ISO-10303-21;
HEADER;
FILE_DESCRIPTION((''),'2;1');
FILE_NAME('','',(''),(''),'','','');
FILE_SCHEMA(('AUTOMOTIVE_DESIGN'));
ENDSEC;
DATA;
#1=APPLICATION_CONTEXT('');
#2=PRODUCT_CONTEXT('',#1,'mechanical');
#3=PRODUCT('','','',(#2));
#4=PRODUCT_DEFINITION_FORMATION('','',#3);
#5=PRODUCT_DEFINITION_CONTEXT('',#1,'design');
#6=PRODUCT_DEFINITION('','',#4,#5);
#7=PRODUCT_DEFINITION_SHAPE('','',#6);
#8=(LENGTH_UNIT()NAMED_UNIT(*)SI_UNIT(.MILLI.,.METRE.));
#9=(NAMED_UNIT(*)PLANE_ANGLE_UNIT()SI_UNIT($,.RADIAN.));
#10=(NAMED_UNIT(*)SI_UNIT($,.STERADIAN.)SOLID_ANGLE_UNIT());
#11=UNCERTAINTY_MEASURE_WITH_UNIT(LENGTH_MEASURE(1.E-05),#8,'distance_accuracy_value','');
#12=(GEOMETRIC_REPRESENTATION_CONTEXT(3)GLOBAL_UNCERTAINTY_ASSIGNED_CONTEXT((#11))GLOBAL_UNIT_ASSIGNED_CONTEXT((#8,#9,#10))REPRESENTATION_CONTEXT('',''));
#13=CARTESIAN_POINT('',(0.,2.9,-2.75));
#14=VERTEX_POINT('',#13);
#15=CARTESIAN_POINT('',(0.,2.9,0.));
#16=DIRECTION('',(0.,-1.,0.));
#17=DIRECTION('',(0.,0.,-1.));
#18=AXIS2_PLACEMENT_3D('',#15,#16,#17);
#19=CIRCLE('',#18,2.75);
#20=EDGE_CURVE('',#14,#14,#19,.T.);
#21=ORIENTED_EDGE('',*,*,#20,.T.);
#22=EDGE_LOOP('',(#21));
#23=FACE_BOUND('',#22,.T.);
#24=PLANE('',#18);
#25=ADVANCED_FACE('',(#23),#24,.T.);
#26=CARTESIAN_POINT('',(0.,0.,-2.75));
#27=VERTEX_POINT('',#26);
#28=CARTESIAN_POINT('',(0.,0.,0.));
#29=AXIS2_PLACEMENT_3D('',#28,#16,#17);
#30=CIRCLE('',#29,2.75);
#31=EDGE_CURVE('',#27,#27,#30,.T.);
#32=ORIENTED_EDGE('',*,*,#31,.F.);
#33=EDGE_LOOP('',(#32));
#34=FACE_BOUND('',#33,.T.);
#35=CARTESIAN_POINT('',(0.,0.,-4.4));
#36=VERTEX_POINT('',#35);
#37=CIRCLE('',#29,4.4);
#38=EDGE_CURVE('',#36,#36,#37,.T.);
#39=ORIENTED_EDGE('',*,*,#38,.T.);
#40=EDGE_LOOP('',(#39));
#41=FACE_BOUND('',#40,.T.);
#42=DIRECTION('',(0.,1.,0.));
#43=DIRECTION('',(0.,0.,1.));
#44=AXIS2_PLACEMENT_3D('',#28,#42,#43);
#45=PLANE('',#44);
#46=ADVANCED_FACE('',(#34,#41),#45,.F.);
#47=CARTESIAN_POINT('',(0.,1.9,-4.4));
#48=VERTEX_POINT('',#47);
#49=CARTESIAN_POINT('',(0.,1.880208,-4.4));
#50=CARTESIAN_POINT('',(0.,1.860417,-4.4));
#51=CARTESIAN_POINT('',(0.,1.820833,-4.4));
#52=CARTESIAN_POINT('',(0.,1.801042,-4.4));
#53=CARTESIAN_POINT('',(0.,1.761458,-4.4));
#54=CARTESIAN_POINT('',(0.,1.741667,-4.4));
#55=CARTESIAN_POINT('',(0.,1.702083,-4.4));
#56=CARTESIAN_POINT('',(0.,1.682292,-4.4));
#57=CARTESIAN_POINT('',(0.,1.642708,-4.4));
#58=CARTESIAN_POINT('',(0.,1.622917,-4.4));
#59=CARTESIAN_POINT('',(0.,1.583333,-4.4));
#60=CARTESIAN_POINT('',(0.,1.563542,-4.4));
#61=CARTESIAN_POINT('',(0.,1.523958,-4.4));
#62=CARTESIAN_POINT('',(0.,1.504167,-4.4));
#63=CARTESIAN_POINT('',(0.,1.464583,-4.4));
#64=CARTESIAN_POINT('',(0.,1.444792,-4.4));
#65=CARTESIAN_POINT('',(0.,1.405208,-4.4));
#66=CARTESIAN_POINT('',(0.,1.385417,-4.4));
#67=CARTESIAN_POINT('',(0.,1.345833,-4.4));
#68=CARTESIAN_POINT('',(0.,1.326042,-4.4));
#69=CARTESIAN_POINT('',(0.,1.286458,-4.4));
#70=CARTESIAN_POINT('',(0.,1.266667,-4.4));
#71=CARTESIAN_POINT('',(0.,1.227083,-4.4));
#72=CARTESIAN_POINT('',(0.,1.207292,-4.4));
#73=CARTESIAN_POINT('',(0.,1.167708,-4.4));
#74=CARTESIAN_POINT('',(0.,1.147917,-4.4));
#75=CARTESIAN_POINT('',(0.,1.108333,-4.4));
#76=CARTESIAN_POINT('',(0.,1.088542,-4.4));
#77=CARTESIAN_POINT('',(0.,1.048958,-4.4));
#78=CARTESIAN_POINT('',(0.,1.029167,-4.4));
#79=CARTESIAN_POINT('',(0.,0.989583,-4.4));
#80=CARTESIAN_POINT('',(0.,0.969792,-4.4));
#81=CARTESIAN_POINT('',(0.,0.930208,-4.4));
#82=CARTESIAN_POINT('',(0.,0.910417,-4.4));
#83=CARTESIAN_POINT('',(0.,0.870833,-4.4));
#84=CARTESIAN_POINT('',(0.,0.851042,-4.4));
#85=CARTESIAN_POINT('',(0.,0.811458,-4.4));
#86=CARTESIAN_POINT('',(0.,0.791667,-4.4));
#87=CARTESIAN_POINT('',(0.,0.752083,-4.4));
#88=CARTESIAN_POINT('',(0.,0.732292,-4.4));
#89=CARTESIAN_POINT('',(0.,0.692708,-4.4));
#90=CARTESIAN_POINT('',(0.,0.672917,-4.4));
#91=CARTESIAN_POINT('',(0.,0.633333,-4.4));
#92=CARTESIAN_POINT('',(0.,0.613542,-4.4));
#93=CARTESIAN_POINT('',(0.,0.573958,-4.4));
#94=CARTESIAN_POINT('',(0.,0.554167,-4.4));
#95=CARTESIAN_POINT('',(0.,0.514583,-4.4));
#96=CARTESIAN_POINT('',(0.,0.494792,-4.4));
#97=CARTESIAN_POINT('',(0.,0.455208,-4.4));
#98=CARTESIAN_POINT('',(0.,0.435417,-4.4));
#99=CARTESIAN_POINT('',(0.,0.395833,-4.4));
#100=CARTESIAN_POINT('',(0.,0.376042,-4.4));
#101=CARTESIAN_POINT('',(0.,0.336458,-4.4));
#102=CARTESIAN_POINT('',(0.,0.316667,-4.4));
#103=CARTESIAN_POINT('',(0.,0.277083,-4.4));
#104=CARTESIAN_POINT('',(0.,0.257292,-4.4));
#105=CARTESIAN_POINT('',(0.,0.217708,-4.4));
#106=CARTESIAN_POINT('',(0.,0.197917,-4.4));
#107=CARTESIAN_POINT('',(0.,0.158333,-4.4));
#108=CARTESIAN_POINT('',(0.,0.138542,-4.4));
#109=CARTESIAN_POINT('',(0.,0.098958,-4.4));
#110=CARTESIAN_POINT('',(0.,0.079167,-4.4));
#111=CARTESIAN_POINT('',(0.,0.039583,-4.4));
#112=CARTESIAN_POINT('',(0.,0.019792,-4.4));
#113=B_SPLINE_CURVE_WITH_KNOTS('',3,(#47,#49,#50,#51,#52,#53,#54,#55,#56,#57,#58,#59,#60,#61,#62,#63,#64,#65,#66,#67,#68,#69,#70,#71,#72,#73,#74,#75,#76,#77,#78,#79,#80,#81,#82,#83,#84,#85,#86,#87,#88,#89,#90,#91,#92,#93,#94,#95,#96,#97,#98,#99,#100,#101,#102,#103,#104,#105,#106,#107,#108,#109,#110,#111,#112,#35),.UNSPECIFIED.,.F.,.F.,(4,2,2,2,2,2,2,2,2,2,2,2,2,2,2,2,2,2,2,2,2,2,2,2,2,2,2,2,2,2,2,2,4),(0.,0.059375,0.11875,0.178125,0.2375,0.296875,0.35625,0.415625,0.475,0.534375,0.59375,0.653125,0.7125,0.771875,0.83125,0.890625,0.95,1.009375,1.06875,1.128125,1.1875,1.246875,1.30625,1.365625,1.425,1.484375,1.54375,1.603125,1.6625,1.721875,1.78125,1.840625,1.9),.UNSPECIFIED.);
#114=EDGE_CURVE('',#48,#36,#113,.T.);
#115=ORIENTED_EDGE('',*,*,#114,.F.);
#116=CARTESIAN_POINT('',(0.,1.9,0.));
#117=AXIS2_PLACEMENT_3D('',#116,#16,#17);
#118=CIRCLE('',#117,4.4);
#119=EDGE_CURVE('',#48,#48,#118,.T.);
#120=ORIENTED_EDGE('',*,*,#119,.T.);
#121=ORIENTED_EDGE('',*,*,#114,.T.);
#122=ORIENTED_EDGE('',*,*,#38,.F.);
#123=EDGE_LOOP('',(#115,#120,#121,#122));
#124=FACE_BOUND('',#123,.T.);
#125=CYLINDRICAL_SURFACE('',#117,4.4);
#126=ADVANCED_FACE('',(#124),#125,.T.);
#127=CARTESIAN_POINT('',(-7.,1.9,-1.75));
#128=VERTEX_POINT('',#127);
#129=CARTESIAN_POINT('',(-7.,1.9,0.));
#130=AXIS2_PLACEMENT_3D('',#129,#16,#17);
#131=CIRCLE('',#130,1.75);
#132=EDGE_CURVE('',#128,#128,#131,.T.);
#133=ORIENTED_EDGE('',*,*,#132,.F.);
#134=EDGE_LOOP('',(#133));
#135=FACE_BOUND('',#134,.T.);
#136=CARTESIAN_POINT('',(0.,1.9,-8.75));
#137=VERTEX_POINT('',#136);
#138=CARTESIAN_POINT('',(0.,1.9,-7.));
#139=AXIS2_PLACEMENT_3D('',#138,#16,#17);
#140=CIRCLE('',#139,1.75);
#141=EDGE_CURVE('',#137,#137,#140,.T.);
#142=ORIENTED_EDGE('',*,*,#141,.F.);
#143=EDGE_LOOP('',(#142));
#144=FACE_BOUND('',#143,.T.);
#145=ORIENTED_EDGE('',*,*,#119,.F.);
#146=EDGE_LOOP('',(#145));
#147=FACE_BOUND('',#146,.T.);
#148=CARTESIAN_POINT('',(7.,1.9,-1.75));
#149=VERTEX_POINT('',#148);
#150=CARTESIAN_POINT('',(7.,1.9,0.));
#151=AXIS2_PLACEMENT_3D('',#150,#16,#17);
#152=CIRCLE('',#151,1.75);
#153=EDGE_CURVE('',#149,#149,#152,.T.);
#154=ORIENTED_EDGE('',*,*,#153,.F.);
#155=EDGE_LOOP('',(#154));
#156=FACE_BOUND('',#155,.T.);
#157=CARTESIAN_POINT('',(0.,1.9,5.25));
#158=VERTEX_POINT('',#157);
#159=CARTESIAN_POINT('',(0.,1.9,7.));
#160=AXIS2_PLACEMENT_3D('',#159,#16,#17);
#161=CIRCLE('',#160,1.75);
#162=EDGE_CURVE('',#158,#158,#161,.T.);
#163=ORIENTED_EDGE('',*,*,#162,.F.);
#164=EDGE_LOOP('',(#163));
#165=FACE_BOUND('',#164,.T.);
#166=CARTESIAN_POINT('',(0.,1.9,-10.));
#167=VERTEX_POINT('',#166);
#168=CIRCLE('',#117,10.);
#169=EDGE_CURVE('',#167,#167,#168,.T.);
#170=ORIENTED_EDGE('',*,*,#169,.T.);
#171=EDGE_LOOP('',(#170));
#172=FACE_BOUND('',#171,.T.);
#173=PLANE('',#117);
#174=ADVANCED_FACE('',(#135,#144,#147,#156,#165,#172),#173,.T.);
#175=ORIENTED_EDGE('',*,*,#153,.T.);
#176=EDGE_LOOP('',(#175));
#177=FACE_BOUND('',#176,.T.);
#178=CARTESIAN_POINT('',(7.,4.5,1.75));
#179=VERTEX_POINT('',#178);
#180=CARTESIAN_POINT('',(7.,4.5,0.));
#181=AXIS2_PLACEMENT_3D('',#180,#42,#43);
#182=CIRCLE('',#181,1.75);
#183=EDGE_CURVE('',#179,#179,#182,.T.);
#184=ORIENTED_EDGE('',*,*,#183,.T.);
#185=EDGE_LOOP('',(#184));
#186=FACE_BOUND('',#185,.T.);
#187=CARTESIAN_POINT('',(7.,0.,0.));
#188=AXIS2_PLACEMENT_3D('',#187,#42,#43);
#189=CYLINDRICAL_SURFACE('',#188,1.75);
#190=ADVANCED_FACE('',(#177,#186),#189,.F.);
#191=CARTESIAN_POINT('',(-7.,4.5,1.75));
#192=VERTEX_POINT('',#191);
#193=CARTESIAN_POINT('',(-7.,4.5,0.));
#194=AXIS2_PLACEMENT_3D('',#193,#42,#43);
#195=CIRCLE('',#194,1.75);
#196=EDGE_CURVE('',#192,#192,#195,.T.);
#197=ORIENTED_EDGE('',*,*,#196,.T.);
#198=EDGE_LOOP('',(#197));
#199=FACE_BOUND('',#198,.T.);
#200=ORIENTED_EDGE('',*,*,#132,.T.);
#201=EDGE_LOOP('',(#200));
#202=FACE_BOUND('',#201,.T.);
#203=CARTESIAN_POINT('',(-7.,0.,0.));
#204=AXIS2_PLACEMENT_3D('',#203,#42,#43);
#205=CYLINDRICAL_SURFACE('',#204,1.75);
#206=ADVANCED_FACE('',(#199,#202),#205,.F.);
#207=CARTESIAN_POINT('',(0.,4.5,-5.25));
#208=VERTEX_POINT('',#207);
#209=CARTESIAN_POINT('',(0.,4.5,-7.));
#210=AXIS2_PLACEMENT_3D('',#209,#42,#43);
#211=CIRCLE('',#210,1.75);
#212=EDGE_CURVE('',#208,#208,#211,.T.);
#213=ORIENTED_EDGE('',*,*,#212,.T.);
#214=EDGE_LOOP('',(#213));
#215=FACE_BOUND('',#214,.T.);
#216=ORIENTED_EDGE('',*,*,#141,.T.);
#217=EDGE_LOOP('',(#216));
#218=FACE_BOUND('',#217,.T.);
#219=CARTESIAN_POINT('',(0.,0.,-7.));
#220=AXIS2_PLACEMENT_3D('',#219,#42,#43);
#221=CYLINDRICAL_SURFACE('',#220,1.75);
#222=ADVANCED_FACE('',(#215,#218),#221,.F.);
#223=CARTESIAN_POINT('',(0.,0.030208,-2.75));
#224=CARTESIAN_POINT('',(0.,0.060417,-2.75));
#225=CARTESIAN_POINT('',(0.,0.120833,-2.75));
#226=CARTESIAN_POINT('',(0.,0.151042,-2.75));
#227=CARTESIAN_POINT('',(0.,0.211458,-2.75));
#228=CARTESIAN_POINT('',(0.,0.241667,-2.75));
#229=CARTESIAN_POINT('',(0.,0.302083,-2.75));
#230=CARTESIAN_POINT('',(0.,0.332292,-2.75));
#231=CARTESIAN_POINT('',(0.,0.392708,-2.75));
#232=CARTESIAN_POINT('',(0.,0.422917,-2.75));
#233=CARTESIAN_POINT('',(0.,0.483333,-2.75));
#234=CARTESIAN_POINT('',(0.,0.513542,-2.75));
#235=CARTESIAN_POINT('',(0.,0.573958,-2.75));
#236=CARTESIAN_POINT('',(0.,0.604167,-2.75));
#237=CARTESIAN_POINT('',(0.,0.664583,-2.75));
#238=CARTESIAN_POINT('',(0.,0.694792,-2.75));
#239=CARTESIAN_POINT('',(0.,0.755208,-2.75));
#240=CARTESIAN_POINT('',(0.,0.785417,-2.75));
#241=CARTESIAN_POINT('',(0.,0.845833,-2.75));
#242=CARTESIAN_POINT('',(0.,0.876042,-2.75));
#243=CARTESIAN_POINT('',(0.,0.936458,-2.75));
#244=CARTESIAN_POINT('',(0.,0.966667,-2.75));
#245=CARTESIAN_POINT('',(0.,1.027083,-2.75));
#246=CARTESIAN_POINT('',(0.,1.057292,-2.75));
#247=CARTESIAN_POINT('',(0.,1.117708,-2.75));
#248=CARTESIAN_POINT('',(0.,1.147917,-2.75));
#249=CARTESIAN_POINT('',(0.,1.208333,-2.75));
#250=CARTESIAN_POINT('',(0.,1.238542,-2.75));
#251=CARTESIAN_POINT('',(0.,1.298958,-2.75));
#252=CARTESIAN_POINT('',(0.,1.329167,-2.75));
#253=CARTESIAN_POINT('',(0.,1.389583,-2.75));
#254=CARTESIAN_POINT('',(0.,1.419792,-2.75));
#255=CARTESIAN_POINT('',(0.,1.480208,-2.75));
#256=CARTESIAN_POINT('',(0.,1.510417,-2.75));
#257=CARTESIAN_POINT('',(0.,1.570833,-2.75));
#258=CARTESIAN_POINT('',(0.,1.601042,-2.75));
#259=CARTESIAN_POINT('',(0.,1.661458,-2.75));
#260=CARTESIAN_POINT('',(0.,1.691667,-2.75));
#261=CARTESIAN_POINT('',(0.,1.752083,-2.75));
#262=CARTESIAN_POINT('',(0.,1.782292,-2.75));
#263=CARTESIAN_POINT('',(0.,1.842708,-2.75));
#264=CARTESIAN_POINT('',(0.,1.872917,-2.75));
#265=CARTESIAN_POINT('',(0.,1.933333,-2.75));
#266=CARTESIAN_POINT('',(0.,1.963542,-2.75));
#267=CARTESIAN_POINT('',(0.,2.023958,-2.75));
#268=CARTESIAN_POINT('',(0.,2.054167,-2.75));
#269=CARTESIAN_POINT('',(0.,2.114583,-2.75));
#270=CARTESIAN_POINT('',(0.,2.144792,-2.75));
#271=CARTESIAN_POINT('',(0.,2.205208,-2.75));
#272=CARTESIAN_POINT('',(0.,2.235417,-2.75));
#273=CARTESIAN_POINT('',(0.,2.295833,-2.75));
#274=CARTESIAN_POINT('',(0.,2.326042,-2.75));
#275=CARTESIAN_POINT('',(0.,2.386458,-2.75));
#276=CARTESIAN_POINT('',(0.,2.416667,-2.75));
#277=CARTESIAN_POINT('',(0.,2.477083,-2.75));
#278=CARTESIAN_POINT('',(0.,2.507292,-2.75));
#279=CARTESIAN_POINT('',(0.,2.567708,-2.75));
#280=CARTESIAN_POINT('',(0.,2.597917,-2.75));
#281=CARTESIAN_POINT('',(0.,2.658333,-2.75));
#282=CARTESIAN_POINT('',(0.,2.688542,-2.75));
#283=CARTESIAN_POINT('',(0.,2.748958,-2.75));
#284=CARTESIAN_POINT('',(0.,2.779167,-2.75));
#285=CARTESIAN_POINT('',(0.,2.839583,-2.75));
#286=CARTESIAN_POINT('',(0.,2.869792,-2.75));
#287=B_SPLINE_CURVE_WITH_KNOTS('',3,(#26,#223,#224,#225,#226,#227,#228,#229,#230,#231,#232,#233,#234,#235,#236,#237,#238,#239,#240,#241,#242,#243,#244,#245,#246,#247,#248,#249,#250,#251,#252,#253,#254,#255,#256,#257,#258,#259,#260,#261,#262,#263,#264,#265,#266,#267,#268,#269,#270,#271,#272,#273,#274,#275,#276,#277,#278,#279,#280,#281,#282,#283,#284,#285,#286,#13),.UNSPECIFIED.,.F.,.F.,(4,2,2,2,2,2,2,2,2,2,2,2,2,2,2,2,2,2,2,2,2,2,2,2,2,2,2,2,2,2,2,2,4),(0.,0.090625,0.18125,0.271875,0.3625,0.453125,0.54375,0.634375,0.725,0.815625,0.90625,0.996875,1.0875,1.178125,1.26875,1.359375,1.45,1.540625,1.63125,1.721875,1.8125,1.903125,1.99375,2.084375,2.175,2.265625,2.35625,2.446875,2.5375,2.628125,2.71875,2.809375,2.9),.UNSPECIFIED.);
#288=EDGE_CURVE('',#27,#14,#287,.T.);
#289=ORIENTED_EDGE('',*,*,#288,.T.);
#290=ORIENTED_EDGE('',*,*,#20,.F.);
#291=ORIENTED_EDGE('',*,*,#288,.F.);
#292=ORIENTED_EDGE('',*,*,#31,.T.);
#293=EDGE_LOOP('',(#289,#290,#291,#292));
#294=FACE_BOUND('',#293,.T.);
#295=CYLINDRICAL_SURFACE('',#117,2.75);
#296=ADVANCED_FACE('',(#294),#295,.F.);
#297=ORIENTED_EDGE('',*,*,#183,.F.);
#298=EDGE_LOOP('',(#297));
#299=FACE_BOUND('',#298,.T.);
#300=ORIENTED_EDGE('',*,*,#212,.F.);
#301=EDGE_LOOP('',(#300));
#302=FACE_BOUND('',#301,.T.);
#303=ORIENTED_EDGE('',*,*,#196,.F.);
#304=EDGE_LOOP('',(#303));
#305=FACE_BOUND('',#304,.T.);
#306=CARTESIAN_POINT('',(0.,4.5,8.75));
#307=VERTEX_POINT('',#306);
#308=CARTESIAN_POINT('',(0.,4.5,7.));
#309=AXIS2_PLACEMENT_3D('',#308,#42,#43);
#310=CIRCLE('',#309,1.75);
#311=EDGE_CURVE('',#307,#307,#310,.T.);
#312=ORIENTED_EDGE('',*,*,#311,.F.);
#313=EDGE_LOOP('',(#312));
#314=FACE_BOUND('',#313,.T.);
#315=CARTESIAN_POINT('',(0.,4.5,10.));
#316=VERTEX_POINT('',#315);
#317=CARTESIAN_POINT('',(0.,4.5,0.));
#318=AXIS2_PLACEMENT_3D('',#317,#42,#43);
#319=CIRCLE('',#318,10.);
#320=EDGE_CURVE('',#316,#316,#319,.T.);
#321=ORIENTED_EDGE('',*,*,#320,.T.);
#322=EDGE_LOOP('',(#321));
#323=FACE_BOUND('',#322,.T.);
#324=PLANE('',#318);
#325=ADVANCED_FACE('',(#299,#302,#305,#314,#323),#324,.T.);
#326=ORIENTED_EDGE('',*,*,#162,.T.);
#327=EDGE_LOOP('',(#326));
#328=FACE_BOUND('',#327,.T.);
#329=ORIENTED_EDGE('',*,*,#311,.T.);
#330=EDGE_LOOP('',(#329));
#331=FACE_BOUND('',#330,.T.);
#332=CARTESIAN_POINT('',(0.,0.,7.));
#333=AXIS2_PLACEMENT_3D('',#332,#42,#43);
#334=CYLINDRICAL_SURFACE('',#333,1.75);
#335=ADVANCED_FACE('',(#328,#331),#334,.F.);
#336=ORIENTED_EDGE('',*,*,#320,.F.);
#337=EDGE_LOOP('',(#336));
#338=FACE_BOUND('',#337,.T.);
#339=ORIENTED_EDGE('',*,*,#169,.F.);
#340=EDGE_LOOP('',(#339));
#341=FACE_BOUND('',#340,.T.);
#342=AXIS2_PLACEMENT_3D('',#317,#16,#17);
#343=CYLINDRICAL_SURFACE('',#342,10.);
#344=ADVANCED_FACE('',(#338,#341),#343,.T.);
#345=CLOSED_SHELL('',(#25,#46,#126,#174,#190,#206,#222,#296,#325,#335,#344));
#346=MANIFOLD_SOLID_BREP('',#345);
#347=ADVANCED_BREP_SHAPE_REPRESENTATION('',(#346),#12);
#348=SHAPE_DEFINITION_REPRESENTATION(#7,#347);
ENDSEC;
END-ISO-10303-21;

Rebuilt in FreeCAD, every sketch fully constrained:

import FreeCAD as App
import Part
import Sketcher
from FreeCAD import Vector

doc = App.newDocument("Part")
body = doc.addObject("PartDesign::Body", "Body")

# Sketch on XZ plane
sketch1 = doc.addObject("Sketcher::SketchObject", "Sketch")
body.addObject(sketch1)
sketch1.AttachmentSupport = (doc.XZ_Plane, [""])
sketch1.MapMode = "FlatFace"
sketch1.addGeometry(Part.Circle(Vector(0, 0, 0), Vector(0, 0, 1), 10), False)
sketch1.addConstraint([
    Sketcher.Constraint("Coincident", 0, 3, -1, 1),
    Sketcher.Constraint("Diameter", 0, 20.0),
])
pad1 = doc.addObject("PartDesign::Pad", "Pad")
body.addObject(pad1)
pad1.Profile = sketch1
pad1.Length = 4.5
pad1.Reversed = True

# Sketch on XZ plane
sketch2 = doc.addObject("Sketcher::SketchObject", "Sketch001")
body.addObject(sketch2)
sketch2.AttachmentSupport = (doc.XZ_Plane, [""])
sketch2.MapMode = "FlatFace"
sketch2.addGeometry([
    Part.Circle(Vector(0, 0, 0), Vector(0, 0, 1), 10),
    Part.Circle(Vector(0, 0, 0), Vector(0, 0, 1), 4.4),
    Part.Circle(Vector(0, 0, 0), Vector(0, 0, 1), 2.8),
], False)
sketch2.addConstraint([
    Sketcher.Constraint("Coincident", 0, 3, -1, 1),
    Sketcher.Constraint("Coincident", 1, 3, -1, 1),
    Sketcher.Constraint("Coincident", 2, 3, -1, 1),
    Sketcher.Constraint("Diameter", 0, 20.0),
    Sketcher.Constraint("Diameter", 1, 8.8),
    Sketcher.Constraint("Diameter", 2, 5.5),
])
pocket1 = doc.addObject("PartDesign::Pocket", "Pocket")
body.addObject(pocket1)
pocket1.Profile = sketch2
pocket1.Length = 1.9

# Sketch on XZ plane
sketch3 = doc.addObject("Sketcher::SketchObject", "Sketch002")
body.addObject(sketch3)
sketch3.AttachmentSupport = (doc.XZ_Plane, [""])
sketch3.MapMode = "FlatFace"
sketch3.AttachmentOffset = App.Placement(Vector(0, 0, -4.5), App.Rotation())
sketch3.addGeometry([
    Part.Circle(Vector(0, -7, 0), Vector(0, 0, 1), 1.8),
    Part.Circle(Vector(7, 0, 0), Vector(0, 0, 1), 1.8),
    Part.Circle(Vector(0, 7, 0), Vector(0, 0, 1), 1.8),
    Part.Circle(Vector(-7, 0, 0), Vector(0, 0, 1), 1.8),
], False)
sketch3.addConstraint([
    Sketcher.Constraint("Equal", 0, 1),
    Sketcher.Constraint("Equal", 1, 2),
    Sketcher.Constraint("Equal", 2, 3),
    Sketcher.Constraint("Symmetric", 0, 3, 2, 3, -1, 1),
    Sketcher.Constraint("Symmetric", 1, 3, 3, 3, -1, 1),
    Sketcher.Constraint("PointOnObject", 0, 3, -2),
    Sketcher.Constraint("PointOnObject", 1, 3, -1),
    Sketcher.Constraint("Diameter", 0, 3.5),
    Sketcher.Constraint("DistanceY", 0, 3, -1, 1, 7.0),
    Sketcher.Constraint("DistanceX", -1, 1, 1, 3, 7.0),
])
pocket2 = doc.addObject("PartDesign::Pocket", "Pocket001")
body.addObject(pocket2)
pocket2.Profile = sketch3
pocket2.Type = "ThroughAll"
pocket2.Reversed = True

# Sketch on XZ plane
sketch4 = doc.addObject("Sketcher::SketchObject", "Sketch003")
body.addObject(sketch4)
sketch4.AttachmentSupport = (doc.XZ_Plane, [""])
sketch4.MapMode = "FlatFace"
sketch4.AttachmentOffset = App.Placement(Vector(0, 0, -1.9), App.Rotation())
sketch4.addGeometry(Part.Circle(Vector(0, 0, 0), Vector(0, 0, 1), 2.8), False)
sketch4.addConstraint([
    Sketcher.Constraint("Coincident", 0, 3, -1, 1),
    Sketcher.Constraint("Diameter", 0, 5.5),
])
pocket3 = doc.addObject("PartDesign::Pocket", "Pocket002")
body.addObject(pocket3)
pocket3.Profile = sketch4
pocket3.Length = 1

doc.recompute()
